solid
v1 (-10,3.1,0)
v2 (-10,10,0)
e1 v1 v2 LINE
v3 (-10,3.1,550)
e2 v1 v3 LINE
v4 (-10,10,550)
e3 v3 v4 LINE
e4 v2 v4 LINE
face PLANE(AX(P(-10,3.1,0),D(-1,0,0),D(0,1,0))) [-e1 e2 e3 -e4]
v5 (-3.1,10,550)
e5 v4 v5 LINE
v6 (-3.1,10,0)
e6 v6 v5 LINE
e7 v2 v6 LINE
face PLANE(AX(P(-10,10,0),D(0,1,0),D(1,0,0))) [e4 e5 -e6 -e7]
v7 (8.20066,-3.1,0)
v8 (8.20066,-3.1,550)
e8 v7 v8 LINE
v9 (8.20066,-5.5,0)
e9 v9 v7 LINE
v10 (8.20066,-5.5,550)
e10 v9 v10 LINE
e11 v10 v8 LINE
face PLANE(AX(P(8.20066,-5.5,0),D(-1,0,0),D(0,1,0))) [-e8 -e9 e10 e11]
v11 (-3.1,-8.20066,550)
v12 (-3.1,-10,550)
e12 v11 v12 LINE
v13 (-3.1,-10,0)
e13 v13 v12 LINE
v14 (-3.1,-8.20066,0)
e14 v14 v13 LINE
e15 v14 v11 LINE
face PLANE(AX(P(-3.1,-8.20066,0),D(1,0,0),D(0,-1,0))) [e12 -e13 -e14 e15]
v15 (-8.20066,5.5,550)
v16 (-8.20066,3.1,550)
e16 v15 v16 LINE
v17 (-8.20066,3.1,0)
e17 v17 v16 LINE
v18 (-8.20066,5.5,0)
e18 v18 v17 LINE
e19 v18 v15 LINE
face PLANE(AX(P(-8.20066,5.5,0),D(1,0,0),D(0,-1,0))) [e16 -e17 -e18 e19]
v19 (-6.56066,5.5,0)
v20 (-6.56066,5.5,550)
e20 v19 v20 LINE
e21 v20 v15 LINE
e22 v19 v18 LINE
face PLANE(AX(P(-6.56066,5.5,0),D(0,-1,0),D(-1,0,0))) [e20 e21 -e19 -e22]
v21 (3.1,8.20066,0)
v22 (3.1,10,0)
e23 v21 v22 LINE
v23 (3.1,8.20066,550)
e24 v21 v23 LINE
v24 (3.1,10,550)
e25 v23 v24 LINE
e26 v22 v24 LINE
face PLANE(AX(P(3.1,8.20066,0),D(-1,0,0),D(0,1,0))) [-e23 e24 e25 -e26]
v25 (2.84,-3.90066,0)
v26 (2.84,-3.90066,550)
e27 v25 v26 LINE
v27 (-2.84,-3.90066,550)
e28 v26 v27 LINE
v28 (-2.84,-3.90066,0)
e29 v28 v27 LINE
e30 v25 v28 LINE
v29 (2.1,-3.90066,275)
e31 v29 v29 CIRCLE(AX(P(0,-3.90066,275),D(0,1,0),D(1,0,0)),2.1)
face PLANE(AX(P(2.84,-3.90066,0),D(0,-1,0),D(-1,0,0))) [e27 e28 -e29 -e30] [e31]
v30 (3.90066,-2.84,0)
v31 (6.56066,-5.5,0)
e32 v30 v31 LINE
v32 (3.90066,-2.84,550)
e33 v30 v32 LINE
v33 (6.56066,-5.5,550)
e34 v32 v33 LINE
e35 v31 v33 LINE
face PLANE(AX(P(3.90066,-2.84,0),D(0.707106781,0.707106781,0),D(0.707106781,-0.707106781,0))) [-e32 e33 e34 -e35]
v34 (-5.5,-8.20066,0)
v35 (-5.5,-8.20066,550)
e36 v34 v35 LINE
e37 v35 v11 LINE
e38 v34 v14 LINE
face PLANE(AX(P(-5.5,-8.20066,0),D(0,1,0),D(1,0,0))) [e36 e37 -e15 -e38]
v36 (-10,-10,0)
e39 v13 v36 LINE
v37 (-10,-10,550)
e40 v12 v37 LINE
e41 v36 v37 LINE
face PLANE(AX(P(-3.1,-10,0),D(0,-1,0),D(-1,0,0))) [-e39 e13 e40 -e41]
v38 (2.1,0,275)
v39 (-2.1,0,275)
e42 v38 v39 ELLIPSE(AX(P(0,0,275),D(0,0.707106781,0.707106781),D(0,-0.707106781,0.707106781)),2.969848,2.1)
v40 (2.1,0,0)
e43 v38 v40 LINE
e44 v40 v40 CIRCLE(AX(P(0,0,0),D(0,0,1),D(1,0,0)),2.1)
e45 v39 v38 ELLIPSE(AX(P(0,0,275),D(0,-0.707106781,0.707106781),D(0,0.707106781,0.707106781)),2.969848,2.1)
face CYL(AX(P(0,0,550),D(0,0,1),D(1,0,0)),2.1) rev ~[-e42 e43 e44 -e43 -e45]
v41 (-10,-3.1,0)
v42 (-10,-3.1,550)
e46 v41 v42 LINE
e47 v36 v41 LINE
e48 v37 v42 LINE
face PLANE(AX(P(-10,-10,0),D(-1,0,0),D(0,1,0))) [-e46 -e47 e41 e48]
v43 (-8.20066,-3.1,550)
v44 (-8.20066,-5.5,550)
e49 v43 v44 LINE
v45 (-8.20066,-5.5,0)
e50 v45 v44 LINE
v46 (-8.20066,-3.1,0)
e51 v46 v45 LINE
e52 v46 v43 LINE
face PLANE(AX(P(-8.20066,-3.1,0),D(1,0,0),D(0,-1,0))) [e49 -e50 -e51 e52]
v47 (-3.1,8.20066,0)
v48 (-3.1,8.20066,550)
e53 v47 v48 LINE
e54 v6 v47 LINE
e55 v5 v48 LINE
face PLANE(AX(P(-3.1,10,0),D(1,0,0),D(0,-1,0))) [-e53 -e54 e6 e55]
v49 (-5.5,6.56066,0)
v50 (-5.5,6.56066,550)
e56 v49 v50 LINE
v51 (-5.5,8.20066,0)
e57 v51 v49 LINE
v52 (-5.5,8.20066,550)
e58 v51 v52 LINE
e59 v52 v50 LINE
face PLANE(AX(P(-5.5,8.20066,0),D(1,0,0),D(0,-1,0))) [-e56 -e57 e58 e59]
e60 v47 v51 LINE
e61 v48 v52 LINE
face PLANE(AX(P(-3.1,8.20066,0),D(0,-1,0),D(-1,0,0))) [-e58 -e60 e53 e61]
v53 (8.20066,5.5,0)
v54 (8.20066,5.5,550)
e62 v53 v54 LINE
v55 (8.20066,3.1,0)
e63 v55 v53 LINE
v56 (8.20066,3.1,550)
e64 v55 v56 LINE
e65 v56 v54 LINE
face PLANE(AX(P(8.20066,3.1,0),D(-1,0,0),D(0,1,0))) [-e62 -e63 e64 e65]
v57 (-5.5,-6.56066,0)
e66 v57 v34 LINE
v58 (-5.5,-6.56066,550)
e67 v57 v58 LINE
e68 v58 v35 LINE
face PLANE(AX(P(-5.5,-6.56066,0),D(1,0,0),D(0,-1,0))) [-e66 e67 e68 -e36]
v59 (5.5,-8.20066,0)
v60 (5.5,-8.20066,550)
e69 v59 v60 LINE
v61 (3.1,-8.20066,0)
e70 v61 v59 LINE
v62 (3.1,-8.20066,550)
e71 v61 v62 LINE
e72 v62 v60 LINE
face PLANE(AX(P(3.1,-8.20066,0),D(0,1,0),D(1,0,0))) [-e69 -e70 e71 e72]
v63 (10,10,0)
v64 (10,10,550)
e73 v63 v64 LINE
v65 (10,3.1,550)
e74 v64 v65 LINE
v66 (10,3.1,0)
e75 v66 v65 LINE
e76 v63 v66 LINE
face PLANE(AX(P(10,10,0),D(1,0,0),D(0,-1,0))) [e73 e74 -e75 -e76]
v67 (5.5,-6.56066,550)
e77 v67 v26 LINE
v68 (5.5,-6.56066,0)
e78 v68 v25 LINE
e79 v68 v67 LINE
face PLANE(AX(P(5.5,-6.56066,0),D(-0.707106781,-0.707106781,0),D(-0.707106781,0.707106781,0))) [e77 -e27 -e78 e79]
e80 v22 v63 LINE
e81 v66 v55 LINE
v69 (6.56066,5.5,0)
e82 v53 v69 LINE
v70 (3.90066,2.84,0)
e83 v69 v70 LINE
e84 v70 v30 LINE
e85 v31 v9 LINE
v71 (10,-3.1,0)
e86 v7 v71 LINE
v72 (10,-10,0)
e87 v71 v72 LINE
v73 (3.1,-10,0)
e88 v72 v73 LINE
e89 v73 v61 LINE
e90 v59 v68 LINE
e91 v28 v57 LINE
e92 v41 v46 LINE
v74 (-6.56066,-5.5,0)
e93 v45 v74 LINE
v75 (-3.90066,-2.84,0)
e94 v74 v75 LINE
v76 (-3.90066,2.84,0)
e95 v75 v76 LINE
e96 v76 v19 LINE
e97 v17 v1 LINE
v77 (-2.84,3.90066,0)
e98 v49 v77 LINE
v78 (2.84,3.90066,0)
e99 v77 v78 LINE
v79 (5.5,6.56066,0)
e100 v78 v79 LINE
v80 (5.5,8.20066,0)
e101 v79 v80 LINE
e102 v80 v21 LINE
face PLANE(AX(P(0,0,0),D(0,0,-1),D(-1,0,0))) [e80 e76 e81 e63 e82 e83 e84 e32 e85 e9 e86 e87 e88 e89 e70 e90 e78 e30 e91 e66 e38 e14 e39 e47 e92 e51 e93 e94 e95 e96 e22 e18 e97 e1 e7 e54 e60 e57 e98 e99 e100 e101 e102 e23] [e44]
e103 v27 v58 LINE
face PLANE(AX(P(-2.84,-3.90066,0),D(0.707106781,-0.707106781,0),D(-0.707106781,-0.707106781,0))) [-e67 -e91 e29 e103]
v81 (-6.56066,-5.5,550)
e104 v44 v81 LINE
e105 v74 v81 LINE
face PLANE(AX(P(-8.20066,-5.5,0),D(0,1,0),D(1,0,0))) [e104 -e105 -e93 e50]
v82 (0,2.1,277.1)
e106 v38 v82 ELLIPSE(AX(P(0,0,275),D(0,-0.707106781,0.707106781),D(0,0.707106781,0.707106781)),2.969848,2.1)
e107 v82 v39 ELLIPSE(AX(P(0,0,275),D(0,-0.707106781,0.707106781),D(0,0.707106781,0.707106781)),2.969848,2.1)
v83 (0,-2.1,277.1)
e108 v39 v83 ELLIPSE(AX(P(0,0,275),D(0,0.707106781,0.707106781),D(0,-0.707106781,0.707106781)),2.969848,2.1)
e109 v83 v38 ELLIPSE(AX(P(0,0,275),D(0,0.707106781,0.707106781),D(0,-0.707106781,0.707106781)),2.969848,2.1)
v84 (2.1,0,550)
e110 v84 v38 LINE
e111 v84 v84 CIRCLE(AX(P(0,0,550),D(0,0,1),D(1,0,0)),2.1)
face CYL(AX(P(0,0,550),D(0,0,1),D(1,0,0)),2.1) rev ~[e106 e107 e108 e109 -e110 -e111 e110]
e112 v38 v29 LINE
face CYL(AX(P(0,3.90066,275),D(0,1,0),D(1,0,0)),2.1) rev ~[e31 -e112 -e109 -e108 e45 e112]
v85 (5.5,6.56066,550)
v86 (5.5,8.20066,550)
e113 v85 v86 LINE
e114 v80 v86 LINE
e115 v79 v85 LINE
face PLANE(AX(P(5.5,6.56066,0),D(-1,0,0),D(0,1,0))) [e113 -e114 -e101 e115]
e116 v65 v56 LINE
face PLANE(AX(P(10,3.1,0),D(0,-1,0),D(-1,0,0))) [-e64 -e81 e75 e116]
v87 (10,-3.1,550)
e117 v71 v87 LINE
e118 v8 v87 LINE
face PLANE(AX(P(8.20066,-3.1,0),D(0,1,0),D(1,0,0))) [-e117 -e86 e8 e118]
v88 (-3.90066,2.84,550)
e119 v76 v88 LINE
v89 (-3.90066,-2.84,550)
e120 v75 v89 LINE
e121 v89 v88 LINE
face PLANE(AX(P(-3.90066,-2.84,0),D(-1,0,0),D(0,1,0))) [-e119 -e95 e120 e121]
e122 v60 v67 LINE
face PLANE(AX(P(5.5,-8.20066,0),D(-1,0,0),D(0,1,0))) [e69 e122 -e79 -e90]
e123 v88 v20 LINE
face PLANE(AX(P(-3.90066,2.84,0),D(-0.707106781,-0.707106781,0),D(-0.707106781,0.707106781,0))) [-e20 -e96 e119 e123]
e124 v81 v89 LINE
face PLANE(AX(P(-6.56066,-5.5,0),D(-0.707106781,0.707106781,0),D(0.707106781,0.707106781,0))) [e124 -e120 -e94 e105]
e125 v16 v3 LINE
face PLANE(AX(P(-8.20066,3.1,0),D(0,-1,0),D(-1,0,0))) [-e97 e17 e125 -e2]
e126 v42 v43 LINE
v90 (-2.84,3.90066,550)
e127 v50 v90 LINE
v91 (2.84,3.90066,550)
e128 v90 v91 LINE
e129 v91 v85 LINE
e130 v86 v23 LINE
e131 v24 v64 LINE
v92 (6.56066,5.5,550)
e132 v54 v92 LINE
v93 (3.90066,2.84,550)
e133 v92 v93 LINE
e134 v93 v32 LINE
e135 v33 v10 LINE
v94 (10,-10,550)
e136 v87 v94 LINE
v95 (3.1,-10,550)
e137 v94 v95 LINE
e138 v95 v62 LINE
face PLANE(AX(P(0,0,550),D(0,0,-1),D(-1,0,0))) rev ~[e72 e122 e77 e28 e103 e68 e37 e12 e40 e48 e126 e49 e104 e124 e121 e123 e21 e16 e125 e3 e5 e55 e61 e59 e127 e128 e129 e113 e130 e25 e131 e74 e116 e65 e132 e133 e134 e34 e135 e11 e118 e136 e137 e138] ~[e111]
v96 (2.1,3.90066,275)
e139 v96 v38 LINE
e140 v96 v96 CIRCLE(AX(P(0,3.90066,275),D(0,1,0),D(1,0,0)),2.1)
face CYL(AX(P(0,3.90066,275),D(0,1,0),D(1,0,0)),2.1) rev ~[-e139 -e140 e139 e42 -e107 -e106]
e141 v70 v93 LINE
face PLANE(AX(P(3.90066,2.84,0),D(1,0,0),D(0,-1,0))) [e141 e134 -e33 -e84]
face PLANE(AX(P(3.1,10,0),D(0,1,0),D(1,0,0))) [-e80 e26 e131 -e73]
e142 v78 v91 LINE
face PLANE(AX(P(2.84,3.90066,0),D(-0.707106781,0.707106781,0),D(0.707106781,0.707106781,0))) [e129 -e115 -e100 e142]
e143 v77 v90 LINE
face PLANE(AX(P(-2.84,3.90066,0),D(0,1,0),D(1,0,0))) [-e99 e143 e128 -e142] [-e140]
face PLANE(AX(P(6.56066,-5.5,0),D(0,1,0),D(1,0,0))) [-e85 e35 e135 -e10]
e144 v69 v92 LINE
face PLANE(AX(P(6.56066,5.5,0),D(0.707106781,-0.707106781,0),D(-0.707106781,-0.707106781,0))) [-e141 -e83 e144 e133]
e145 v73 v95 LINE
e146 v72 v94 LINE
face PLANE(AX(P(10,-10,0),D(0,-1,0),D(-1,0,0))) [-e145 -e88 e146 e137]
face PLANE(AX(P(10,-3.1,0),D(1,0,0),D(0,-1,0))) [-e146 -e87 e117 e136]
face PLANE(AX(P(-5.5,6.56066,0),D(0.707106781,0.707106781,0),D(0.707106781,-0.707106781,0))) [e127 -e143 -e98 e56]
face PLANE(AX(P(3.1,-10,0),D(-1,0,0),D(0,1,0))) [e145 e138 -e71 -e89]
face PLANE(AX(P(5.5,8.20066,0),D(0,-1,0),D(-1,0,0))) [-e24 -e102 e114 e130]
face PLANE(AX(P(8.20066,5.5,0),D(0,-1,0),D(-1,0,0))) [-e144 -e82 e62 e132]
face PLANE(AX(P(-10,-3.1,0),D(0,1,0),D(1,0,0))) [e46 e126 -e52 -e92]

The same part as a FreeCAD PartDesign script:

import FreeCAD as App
import Part
import Sketcher

V = App.Vector
Q = App.Units.Quantity

doc = App.newDocument("Part")
body = doc.addObject("PartDesign::Body", "Body")

# Sketch on XY plane
sketch1 = body.newObject("Sketcher::SketchObject", "Sketch")
sketch1.AttachmentSupport = (doc.getObject("XY_Plane"), [""])
sketch1.MapMode = "FlatFace"
sketch1.addGeometry([
    Part.LineSegment(V(-3.1, 8.2, 0), V(-3.1, 10, 0)),  # 0
    Part.LineSegment(V(-3.1, 10, 0), V(-10, 10, 0)),  # 1
    Part.LineSegment(V(-10, 10, 0), V(-10, 3.1, 0)),  # 2
    Part.LineSegment(V(-10, 3.1, 0), V(-8.2, 3.1, 0)),  # 3
    Part.LineSegment(V(-8.2, 3.1, 0), V(-8.2, 5.5, 0)),  # 4
    Part.LineSegment(V(-8.2, 5.5, 0), V(-6.6, 5.5, 0)),  # 5
    Part.LineSegment(V(-6.6, 5.5, 0), V(-3.9, 2.8, 0)),  # 6
    Part.LineSegment(V(-3.9, 2.8, 0), V(-3.9, -2.8, 0)),  # 7
    Part.LineSegment(V(-3.9, -2.8, 0), V(-6.6, -5.5, 0)),  # 8
    Part.LineSegment(V(-6.6, -5.5, 0), V(-8.2, -5.5, 0)),  # 9
    Part.LineSegment(V(-8.2, -5.5, 0), V(-8.2, -3.1, 0)),  # 10
    Part.LineSegment(V(-8.2, -3.1, 0), V(-10, -3.1, 0)),  # 11
    Part.LineSegment(V(-10, -3.1, 0), V(-10, -10, 0)),  # 12
    Part.LineSegment(V(-10, -10, 0), V(-3.1, -10, 0)),  # 13
    Part.LineSegment(V(-3.1, -10, 0), V(-3.1, -8.2, 0)),  # 14
    Part.LineSegment(V(-3.1, -8.2, 0), V(-5.5, -8.2, 0)),  # 15
    Part.LineSegment(V(-5.5, -8.2, 0), V(-5.5, -6.6, 0)),  # 16
    Part.LineSegment(V(-5.5, -6.6, 0), V(-2.8, -3.9, 0)),  # 17
    Part.LineSegment(V(-2.8, -3.9, 0), V(2.8, -3.9, 0)),  # 18
    Part.LineSegment(V(2.8, -3.9, 0), V(5.5, -6.6, 0)),  # 19
    Part.LineSegment(V(5.5, -6.6, 0), V(5.5, -8.2, 0)),  # 20
    Part.LineSegment(V(5.5, -8.2, 0), V(3.1, -8.2, 0)),  # 21
    Part.LineSegment(V(3.1, -8.2, 0), V(3.1, -10, 0)),  # 22
    Part.LineSegment(V(3.1, -10, 0), V(10, -10, 0)),  # 23
    Part.LineSegment(V(10, -10, 0), V(10, -3.1, 0)),  # 24
    Part.LineSegment(V(10, -3.1, 0), V(8.2, -3.1, 0)),  # 25
    Part.LineSegment(V(8.2, -3.1, 0), V(8.2, -5.5, 0)),  # 26
    Part.LineSegment(V(8.2, -5.5, 0), V(6.6, -5.5, 0)),  # 27
    Part.LineSegment(V(6.6, -5.5, 0), V(3.9, -2.8, 0)),  # 28
    Part.LineSegment(V(3.9, -2.8, 0), V(3.9, 2.8, 0)),  # 29
    Part.LineSegment(V(3.9, 2.8, 0), V(6.6, 5.5, 0)),  # 30
    Part.LineSegment(V(6.6, 5.5, 0), V(8.2, 5.5, 0)),  # 31
    Part.LineSegment(V(8.2, 5.5, 0), V(8.2, 3.1, 0)),  # 32
    Part.LineSegment(V(8.2, 3.1, 0), V(10, 3.1, 0)),  # 33
    Part.LineSegment(V(10, 3.1, 0), V(10, 10, 0)),  # 34
    Part.LineSegment(V(10, 10, 0), V(3.1, 10, 0)),  # 35
    Part.LineSegment(V(3.1, 10, 0), V(3.1, 8.2, 0)),  # 36
    Part.LineSegment(V(3.1, 8.2, 0), V(5.5, 8.2, 0)),  # 37
    Part.LineSegment(V(5.5, 8.2, 0), V(5.5, 6.6, 0)),  # 38
    Part.LineSegment(V(5.5, 6.6, 0), V(2.8, 3.9, 0)),  # 39
    Part.LineSegment(V(2.8, 3.9, 0), V(-2.8, 3.9, 0)),  # 40
    Part.LineSegment(V(-2.8, 3.9, 0), V(-5.5, 6.6, 0)),  # 41
    Part.LineSegment(V(-5.5, 6.6, 0), V(-5.5, 8.2, 0)),  # 42
    Part.LineSegment(V(-5.5, 8.2, 0), V(-3.1, 8.2, 0)),  # 43
], False)
sketch1.addConstraint([
    Sketcher.Constraint("Coincident", 0, 2, 1, 1),
    Sketcher.Constraint("Coincident", 1, 2, 2, 1),
    Sketcher.Constraint("Coincident", 2, 2, 3, 1),
    Sketcher.Constraint("Coincident", 3, 2, 4, 1),
    Sketcher.Constraint("Coincident", 4, 2, 5, 1),
    Sketcher.Constraint("Coincident", 5, 2, 6, 1),
    Sketcher.Constraint("Coincident", 6, 2, 7, 1),
    Sketcher.Constraint("Coincident", 7, 2, 8, 1),
    Sketcher.Constraint("Coincident", 8, 2, 9, 1),
    Sketcher.Constraint("Coincident", 9, 2, 10, 1),
    Sketcher.Constraint("Coincident", 10, 2, 11, 1),
    Sketcher.Constraint("Coincident", 11, 2, 12, 1),
    Sketcher.Constraint("Coincident", 12, 2, 13, 1),
    Sketcher.Constraint("Coincident", 13, 2, 14, 1),
    Sketcher.Constraint("Coincident", 14, 2, 15, 1),
    Sketcher.Constraint("Coincident", 15, 2, 16, 1),
    Sketcher.Constraint("Coincident", 16, 2, 17, 1),
    Sketcher.Constraint("Coincident", 17, 2, 18, 1),
    Sketcher.Constraint("Coincident", 18, 2, 19, 1),
    Sketcher.Constraint("Coincident", 19, 2, 20, 1),
    Sketcher.Constraint("Coincident", 20, 2, 21, 1),
    Sketcher.Constraint("Coincident", 21, 2, 22, 1),
    Sketcher.Constraint("Coincident", 22, 2, 23, 1),
    Sketcher.Constraint("Coincident", 23, 2, 24, 1),
    Sketcher.Constraint("Coincident", 24, 2, 25, 1),
    Sketcher.Constraint("Coincident", 25, 2, 26, 1),
    Sketcher.Constraint("Coincident", 26, 2, 27, 1),
    Sketcher.Constraint("Coincident", 27, 2, 28, 1),
    Sketcher.Constraint("Coincident", 28, 2, 29, 1),
    Sketcher.Constraint("Coincident", 29, 2, 30, 1),
    Sketcher.Constraint("Coincident", 30, 2, 31, 1),
    Sketcher.Constraint("Coincident", 31, 2, 32, 1),
    Sketcher.Constraint("Coincident", 32, 2, 33, 1),
    Sketcher.Constraint("Coincident", 33, 2, 34, 1),
    Sketcher.Constraint("Coincident", 34, 2, 35, 1),
    Sketcher.Constraint("Coincident", 35, 2, 36, 1),
    Sketcher.Constraint("Coincident", 36, 2, 37, 1),
    Sketcher.Constraint("Coincident", 37, 2, 38, 1),
    Sketcher.Constraint("Coincident", 38, 2, 39, 1),
    Sketcher.Constraint("Coincident", 39, 2, 40, 1),
    Sketcher.Constraint("Coincident", 40, 2, 41, 1),
    Sketcher.Constraint("Coincident", 41, 2, 42, 1),
    Sketcher.Constraint("Coincident", 42, 2, 43, 1),
    Sketcher.Constraint("Coincident", 43, 2, 0, 1),
    Sketcher.Constraint("Vertical", 0),
    Sketcher.Constraint("Horizontal", 1),
    Sketcher.Constraint("Vertical", 2),
    Sketcher.Constraint("Horizontal", 3),
    Sketcher.Constraint("Vertical", 4),
    Sketcher.Constraint("Horizontal", 5),
    Sketcher.Constraint("Vertical", 7),
    Sketcher.Constraint("Horizontal", 9),
    Sketcher.Constraint("Vertical", 10),
    Sketcher.Constraint("Horizontal", 11),
    Sketcher.Constraint("Vertical", 12),
    Sketcher.Constraint("Horizontal", 13),
    Sketcher.Constraint("Vertical", 14),
    Sketcher.Constraint("Horizontal", 15),
    Sketcher.Constraint("Vertical", 16),
    Sketcher.Constraint("Horizontal", 18),
    Sketcher.Constraint("Vertical", 20),
    Sketcher.Constraint("Horizontal", 21),
    Sketcher.Constraint("Vertical", 22),
    Sketcher.Constraint("Horizontal", 23),
    Sketcher.Constraint("Vertical", 24),
    Sketcher.Constraint("Horizontal", 25),
    Sketcher.Constraint("Vertical", 26),
    Sketcher.Constraint("Horizontal", 27),
    Sketcher.Constraint("Vertical", 29),
    Sketcher.Constraint("Horizontal", 31),
    Sketcher.Constraint("Vertical", 32),
    Sketcher.Constraint("Horizontal", 33),
    Sketcher.Constraint("Vertical", 34),
    Sketcher.Constraint("Horizontal", 35),
    Sketcher.Constraint("Vertical", 36),
    Sketcher.Constraint("Horizontal", 37),
    Sketcher.Constraint("Vertical", 38),
    Sketcher.Constraint("Horizontal", 40),
    Sketcher.Constraint("Vertical", 42),
    Sketcher.Constraint("Horizontal", 43),
    Sketcher.Constraint("Symmetric", 0, 2, 22, 2, -1, 1),
    Sketcher.Constraint("Symmetric", 2, 2, 24, 2, -1, 1),
    Sketcher.Constraint("Symmetric", 4, 2, 26, 2, -1, 1),
    Sketcher.Constraint("Symmetric", 6, 2, 28, 2, -1, 1),
    Sketcher.Constraint("Symmetric", 8, 2, 30, 2, -1, 1),
    Sketcher.Constraint("Symmetric", 10, 2, 32, 2, -1, 1),
    Sketcher.Constraint("Symmetric", 12, 2, 34, 2, -1, 1),
    Sketcher.Constraint("Symmetric", 14, 2, 36, 2, -1, 1),
    Sketcher.Constraint("Symmetric", 16, 2, 38, 2, -1, 1),
    Sketcher.Constraint("Symmetric", 17, 2, 39, 2, -1, 1),
    Sketcher.Constraint("Symmetric", 19, 2, 41, 2, -1, 1),
    Sketcher.Constraint("Symmetric", 16, 2, 19, 2, -2),
    Sketcher.Constraint("Symmetric", 14, 2, 21, 2, -2),
    Sketcher.Constraint("Symmetric", 12, 2, 23, 2, -2),
    Sketcher.Constraint("Symmetric", 10, 2, 25, 2, -2),
    Sketcher.Constraint("Symmetric", 8, 2, 27, 2, -2),
    Sketcher.Constraint("Perpendicular", 6, 8),
    Sketcher.Constraint("Parallel", 8, 17),
    Sketcher.Constraint("Perpendicular", 17, 19),
    Sketcher.Constraint("Parallel", 19, 28),
    Sketcher.Constraint("Perpendicular", 28, 30),
    Sketcher.Constraint("Perpendicular", 39, 41),
    Sketcher.Constraint("Horizontal", 7, 2, 28, 2),
    Sketcher.Constraint("Horizontal", 37, 2, 42, 2),
    Sketcher.Constraint("Equal", 33, 0),
    Sketcher.Constraint("Equal", 35, 2),
    Sketcher.Constraint("Equal", 43, 4),
    Sketcher.Constraint("Equal", 40, 7),
    Sketcher.Constraint("Equal", 31, 16),
    Sketcher.Constraint("Equal", 8, 17),
    Sketcher.Constraint("DistanceX", 1, 2, 1, 1, Q("6.9 mm")),
    Sketcher.Constraint("DistanceX", 15, 2, 15, 1, Q("2.4 mm")),
    Sketcher.Constraint("DistanceY", -1, 1, 0, 2, Q("10 mm")),
    Sketcher.Constraint("DistanceX", 5, 1, 5, 2, Q("1.64 mm")),
    Sketcher.Constraint("DistanceX", 18, 1, 18, 2, Q("5.68 mm")),
    Sketcher.Constraint("DistanceX", 3, 1, 3, 2, Q("1.79934 mm")),
])
pad1 = body.newObject("PartDesign::Pad", "Pad")
pad1.Profile = sketch1
pad1.Length = 550

# Sketch on XY plane
sketch2 = body.newObject("Sketcher::SketchObject", "Sketch001")
sketch2.AttachmentSupport = (doc.getObject("XY_Plane"), [""])
sketch2.MapMode = "FlatFace"
sketch2.AttachmentOffset = App.Placement(V(0, 0, 550), App.Rotation())
sketch2.addGeometry(Part.Circle(V(0, 0, 0), V(0, 0, 1), 2.1), False)
sketch2.addConstraint([
    Sketcher.Constraint("Coincident", 0, 3, -1, 1),
    Sketcher.Constraint("Diameter", 0, Q("4.2 mm")),
])
pocket1 = body.newObject("PartDesign::Pocket", "Pocket")
pocket1.Profile = sketch2
pocket1.Type = "ThroughAll"

# Sketch on XZ plane
sketch3 = body.newObject("Sketcher::SketchObject", "Sketch002")
sketch3.AttachmentSupport = (doc.getObject("XZ_Plane"), [""])
sketch3.MapMode = "FlatFace"
sketch3.AttachmentOffset = App.Placement(V(0, 0, -3.90066), App.Rotation())
sketch3.addGeometry(Part.Circle(V(0, 275, 0), V(0, 0, 1), 2.1), False)
sketch3.addConstraint([
    Sketcher.Constraint("PointOnObject", 0, 3, -2),
    Sketcher.Constraint("Diameter", 0, Q("4.2 mm")),
    Sketcher.Constraint("DistanceY", -1, 1, 0, 3, Q("275 mm")),
])
pocket2 = body.newObject("PartDesign::Pocket", "Pocket001")
pocket2.Profile = sketch3
pocket2.Type = "ThroughAll"
pocket2.Reversed = True

doc.recompute()
